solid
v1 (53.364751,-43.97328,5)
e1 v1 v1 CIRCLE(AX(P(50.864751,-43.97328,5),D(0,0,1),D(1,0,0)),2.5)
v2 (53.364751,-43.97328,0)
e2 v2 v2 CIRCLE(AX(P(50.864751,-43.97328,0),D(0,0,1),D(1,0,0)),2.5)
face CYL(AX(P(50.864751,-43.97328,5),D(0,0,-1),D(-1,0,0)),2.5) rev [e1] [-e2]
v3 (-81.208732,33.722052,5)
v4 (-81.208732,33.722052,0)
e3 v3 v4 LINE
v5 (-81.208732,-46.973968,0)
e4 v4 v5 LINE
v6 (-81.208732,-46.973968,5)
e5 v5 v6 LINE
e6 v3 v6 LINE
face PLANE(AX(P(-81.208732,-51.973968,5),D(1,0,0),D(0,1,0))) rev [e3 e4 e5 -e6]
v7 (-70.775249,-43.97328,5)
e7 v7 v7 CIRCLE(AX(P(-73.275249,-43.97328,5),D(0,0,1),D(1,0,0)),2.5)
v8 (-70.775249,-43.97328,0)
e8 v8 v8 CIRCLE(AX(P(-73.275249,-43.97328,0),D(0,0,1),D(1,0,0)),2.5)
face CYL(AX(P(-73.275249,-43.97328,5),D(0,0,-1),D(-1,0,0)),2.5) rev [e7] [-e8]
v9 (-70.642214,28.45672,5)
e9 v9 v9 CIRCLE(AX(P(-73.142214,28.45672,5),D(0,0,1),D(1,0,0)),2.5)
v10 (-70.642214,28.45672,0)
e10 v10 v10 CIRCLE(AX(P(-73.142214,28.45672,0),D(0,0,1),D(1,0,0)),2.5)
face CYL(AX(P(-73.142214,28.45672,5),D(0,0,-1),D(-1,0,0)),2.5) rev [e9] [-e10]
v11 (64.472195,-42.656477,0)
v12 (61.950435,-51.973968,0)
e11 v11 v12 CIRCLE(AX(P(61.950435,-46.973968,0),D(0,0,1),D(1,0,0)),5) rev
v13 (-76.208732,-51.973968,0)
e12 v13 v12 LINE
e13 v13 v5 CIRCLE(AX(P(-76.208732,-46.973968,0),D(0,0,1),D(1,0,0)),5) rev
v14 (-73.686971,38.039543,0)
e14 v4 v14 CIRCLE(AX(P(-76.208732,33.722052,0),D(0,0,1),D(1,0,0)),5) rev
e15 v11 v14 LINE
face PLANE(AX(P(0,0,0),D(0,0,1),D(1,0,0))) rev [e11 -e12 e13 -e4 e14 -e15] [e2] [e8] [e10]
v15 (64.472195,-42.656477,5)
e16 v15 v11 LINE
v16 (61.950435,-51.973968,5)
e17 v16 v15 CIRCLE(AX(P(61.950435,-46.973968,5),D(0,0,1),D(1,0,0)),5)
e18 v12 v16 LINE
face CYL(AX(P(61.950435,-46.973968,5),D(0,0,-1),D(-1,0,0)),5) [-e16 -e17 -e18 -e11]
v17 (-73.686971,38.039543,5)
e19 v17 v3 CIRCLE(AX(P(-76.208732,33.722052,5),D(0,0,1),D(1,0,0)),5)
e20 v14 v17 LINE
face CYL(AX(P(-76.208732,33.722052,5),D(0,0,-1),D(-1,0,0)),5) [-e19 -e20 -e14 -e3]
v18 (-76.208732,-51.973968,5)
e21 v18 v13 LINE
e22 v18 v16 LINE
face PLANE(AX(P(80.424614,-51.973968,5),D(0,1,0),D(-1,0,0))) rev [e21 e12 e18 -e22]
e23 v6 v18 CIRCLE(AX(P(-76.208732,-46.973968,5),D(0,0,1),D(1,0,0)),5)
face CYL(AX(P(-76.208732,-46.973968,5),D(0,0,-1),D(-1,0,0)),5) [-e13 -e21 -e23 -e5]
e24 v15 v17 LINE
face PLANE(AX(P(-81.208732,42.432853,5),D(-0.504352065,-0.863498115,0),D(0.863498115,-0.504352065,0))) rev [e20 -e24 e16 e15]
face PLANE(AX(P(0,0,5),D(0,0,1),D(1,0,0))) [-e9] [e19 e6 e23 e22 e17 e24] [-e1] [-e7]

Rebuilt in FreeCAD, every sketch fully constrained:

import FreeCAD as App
import Part
import Sketcher
Q = App.Units.Quantity


def edges_at(feature, points):
    """Names of the edges that pass closest to the given points."""
    edges = feature.Shape.Edges
    near = lambda p: min(range(len(edges)), key=lambda i: edges[i].distToShape(Part.Vertex(*p))[0])
    return sorted({f"Edge{near(p) + 1}" for p in points})


def add_polygon(sketch, points):
    """Adds a closed chain of lines whose ends are joined by coincident constraints."""
    first, n = sketch.GeometryCount, len(points)
    for a, b in zip(points, points[1:] + points[:1]):
        sketch.addGeometry(Part.LineSegment(App.Vector(*a, 0), App.Vector(*b, 0)), False)
    for i in range(n):
        sketch.addConstraint(Sketcher.Constraint("Coincident", first + i, 2, first + (i + 1) % n, 1))

doc = App.newDocument("Part")
body = doc.addObject("PartDesign::Body", "Body")

# Sketch on XY plane
sketch1 = doc.addObject("Sketcher::SketchObject", "Sketch")
body.addObject(sketch1)
sketch1.AttachmentSupport = (doc.XY_Plane, [""])
sketch1.MapMode = "FlatFace"
add_polygon(sketch1, [(-81.208732, -51.973968), (80.424614, -51.973968), (-81.208732, 42.432853)])  # lines 0-2
sketch1.addGeometry(Part.Circle(App.Vector(50.864751, -43.97328, 0), App.Vector(0, 0, 1), 2.5), False)  # 3
sketch1.addGeometry(Part.Circle(App.Vector(-73.275249, -43.97328, 0), App.Vector(0, 0, 1), 2.5), False)  # 4
sketch1.addGeometry(Part.Circle(App.Vector(-73.142214, 28.45672, 0), App.Vector(0, 0, 1), 2.5), False)  # 5
sketch1.addConstraint([
    Sketcher.Constraint("Horizontal", 0),
    Sketcher.Constraint("Vertical", 2),
    Sketcher.Constraint("Equal", 3, 4),
    Sketcher.Constraint("Equal", 4, 5),
    Sketcher.Constraint("Horizontal", 3, 3, 4, 3),
    Sketcher.Constraint("Diameter", 3, Q("5 mm")),
    Sketcher.Constraint("DistanceX", 4, 3, 3, 3, Q("124.14 mm")),
    Sketcher.Constraint("DistanceY", 4, 3, 5, 3, Q("72.43 mm")),
    Sketcher.Constraint("DistanceY", 2, 2, 2, 1, Q("94.406821 mm")),
    Sketcher.Constraint("DistanceX", 0, 1, 0, 2, Q("161.633346 mm")),
    Sketcher.Constraint("DistanceX", -1, 1, 3, 3, Q("50.864751 mm")),
    Sketcher.Constraint("DistanceY", 3, 3, -1, 1, Q("43.97328 mm")),
    Sketcher.Constraint("DistanceX", 1, 2, -1, 1, Q("81.208732 mm")),
    Sketcher.Constraint("DistanceX", 5, 3, -1, 1, Q("73.142214 mm")),
    Sketcher.Constraint("DistanceY", 0, 2, -1, 1, Q("51.973968 mm")),
])
pad1 = doc.addObject("PartDesign::Pad", "Pad")
body.addObject(pad1)
pad1.Profile = sketch1
pad1.Length = 5
doc.recompute()

fillet = doc.addObject("PartDesign::Fillet", "Fillet")
body.addObject(fillet)
fillet.Base = (pad1, edges_at(pad1, [(-81.209, 42.433, 2.5), (80.425, -51.974, 2.5), (-81.209, -51.974, 2.5)]))
fillet.Radius = 5

doc.recompute()
